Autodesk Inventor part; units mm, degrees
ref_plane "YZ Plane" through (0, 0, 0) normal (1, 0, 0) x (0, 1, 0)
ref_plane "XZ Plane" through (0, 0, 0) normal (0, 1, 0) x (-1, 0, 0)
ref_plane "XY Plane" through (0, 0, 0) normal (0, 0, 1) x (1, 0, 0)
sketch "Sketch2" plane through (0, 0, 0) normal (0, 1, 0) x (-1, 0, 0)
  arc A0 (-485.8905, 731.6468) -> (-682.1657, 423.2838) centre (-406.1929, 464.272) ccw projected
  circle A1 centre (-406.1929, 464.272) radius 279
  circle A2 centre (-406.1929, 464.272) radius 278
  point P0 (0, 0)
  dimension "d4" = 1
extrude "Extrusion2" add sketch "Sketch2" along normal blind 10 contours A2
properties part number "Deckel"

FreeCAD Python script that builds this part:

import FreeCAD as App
import Part
import Sketcher

doc = App.newDocument("Part")
body = doc.addObject("PartDesign::Body", "Body")

# Sketch on XZ plane
sketch1 = body.newObject("Sketcher::SketchObject", "Sketch")
sketch1.AttachmentSupport = (doc.getObject("XZ_Plane"), [""])
sketch1.MapMode = "FlatFace"
sketch1.addGeometry(Part.Circle(App.Vector(406.1929, 464.272, 0), App.Vector(0, 0, 1), 278), False)
sketch1.addConstraint(Sketcher.Constraint("Diameter", 0, 556.0))
sketch1.addConstraint(Sketcher.Constraint("DistanceX", -1, 1, 0, 3, 406.193))
sketch1.addConstraint(Sketcher.Constraint("DistanceY", -1, 1, 0, 3, 464.272))
pad1 = body.newObject("PartDesign::Pad", "Pad")
pad1.Profile = sketch1
pad1.Length = 10
pad1.Reversed = True

doc.recompute()
